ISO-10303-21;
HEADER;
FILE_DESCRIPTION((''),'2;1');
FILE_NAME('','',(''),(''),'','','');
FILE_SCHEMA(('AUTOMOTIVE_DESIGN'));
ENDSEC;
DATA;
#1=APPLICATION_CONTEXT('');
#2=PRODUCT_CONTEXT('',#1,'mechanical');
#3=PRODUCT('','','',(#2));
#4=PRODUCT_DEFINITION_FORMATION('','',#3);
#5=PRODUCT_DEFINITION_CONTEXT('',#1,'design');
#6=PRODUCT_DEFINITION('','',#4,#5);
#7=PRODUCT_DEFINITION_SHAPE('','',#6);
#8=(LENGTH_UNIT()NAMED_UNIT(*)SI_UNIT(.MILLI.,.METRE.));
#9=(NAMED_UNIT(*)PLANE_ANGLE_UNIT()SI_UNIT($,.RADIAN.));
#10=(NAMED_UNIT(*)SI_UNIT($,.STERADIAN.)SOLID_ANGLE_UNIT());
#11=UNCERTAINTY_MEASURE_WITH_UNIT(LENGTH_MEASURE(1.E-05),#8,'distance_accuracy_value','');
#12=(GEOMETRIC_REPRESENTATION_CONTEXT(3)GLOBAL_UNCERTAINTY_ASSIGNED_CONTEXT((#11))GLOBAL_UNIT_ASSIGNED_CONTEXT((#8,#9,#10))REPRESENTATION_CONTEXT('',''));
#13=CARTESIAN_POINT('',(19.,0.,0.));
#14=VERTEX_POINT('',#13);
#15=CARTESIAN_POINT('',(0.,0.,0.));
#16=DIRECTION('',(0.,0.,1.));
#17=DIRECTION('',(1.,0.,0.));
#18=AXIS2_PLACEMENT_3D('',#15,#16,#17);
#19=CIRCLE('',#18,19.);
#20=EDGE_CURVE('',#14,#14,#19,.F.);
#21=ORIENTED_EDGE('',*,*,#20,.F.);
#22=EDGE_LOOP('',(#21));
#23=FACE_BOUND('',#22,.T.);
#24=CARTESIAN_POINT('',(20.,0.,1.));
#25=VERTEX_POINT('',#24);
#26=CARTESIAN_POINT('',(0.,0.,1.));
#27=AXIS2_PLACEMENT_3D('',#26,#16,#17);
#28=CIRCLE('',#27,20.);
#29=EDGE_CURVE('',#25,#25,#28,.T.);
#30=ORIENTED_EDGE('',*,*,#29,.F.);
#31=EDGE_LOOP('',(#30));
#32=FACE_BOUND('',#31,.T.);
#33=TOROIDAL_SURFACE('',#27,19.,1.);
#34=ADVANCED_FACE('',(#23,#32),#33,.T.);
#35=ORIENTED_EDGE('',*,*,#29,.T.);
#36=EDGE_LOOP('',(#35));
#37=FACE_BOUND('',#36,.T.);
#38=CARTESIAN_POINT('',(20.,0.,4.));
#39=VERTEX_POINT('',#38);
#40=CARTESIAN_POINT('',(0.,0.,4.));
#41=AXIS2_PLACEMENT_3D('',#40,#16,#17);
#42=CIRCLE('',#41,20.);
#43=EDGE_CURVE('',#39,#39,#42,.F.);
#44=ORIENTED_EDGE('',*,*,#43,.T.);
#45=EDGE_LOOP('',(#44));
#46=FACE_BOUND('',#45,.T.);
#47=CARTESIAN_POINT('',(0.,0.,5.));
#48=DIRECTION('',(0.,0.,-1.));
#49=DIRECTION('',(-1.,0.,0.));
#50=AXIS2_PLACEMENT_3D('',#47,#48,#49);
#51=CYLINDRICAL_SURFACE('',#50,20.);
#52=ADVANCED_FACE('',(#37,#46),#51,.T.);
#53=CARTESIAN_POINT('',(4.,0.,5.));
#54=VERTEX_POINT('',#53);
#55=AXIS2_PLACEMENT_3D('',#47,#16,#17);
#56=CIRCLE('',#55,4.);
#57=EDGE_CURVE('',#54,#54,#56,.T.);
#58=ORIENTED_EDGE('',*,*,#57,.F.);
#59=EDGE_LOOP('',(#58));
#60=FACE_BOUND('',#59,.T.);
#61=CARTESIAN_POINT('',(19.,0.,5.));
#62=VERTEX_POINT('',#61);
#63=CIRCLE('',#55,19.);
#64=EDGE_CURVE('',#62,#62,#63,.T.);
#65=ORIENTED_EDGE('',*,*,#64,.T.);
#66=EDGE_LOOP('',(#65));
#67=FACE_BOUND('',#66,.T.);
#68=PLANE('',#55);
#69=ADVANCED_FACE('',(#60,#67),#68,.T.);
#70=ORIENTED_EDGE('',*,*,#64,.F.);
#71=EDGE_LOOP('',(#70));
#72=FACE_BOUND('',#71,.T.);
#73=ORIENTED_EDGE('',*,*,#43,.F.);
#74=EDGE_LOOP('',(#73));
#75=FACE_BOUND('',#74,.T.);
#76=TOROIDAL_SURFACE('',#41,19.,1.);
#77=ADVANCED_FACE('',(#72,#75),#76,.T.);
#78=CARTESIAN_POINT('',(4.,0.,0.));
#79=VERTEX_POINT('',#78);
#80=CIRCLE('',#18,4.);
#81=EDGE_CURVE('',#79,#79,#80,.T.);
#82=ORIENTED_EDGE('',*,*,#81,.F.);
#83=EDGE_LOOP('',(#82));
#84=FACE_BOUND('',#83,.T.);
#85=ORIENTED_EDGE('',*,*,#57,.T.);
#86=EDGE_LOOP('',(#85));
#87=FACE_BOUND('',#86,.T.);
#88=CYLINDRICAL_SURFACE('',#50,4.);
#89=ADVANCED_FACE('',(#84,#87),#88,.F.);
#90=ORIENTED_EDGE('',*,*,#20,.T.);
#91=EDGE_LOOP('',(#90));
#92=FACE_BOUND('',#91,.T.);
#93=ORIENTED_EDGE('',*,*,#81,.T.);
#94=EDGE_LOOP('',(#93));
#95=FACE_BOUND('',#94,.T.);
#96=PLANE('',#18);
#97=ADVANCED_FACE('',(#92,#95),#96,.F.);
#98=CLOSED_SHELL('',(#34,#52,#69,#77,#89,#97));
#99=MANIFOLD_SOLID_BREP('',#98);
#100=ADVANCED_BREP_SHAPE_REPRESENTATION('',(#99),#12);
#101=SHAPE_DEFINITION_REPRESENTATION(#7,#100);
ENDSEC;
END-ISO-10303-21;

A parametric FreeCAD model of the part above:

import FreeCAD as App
import Part
import Sketcher

V = App.Vector
Q = App.Units.Quantity


def edges_at(feature, points):
    """Names of the edges that pass closest to the given points."""
    edges = feature.Shape.Edges
    near = lambda p: min(range(len(edges)), key=lambda i: edges[i].distToShape(Part.Vertex(*p))[0])
    return sorted({f"Edge{near(p) + 1}" for p in points})

doc = App.newDocument("Part")
params = doc.addObject("Spreadsheet::Sheet", "Params")
for row, (alias, value) in enumerate([
    ("sketch1_diameter", "40 mm"),
    ("sketch1_diameter2", "8 mm"),
    ("pad1_length", "5 mm"),
    ("fillet_radius", "1 mm"),
], start=1):
    params.set(f"A{row}", alias)
    params.set(f"B{row}", "=" + value)
    params.setAlias(f"B{row}", alias)

body = doc.addObject("PartDesign::Body", "Body")

sketch1 = doc.addObject("Sketcher::SketchObject", "Sketch")
body.addObject(sketch1)
sketch1.AttachmentSupport = (doc.XY_Plane, [""])
sketch1.MapMode = "FlatFace"
sketch1.addGeometry([
    Part.Circle(V(0, 0, 0), V(0, 0, 1), 20),
    Part.Circle(V(0, 0, 0), V(0, 0, 1), 4),
], False)
sketch1.addConstraint([
    Sketcher.Constraint("Coincident", 0, 3, -1, 1),
    Sketcher.Constraint("Coincident", 1, 3, -1, 1),
    Sketcher.Constraint("Diameter", 0, Q("40 mm")),
    Sketcher.Constraint("Diameter", 1, Q("8 mm")),
])
sketch1.setExpression("Constraints[2]", "Params.sketch1_diameter")
sketch1.setExpression("Constraints[3]", "Params.sketch1_diameter2")
pad1 = doc.addObject("PartDesign::Pad", "Pad")
body.addObject(pad1)
pad1.Profile = sketch1
pad1.setExpression("Length", "Params.pad1_length")
doc.recompute()

fillet = doc.addObject("PartDesign::Fillet", "Fillet")
body.addObject(fillet)
fillet.Base = (pad1, edges_at(pad1, [(-20, 0, 0), (-20, 0, 5)]))
fillet.setExpression("Radius", "Params.fillet_radius")

doc.recompute()
